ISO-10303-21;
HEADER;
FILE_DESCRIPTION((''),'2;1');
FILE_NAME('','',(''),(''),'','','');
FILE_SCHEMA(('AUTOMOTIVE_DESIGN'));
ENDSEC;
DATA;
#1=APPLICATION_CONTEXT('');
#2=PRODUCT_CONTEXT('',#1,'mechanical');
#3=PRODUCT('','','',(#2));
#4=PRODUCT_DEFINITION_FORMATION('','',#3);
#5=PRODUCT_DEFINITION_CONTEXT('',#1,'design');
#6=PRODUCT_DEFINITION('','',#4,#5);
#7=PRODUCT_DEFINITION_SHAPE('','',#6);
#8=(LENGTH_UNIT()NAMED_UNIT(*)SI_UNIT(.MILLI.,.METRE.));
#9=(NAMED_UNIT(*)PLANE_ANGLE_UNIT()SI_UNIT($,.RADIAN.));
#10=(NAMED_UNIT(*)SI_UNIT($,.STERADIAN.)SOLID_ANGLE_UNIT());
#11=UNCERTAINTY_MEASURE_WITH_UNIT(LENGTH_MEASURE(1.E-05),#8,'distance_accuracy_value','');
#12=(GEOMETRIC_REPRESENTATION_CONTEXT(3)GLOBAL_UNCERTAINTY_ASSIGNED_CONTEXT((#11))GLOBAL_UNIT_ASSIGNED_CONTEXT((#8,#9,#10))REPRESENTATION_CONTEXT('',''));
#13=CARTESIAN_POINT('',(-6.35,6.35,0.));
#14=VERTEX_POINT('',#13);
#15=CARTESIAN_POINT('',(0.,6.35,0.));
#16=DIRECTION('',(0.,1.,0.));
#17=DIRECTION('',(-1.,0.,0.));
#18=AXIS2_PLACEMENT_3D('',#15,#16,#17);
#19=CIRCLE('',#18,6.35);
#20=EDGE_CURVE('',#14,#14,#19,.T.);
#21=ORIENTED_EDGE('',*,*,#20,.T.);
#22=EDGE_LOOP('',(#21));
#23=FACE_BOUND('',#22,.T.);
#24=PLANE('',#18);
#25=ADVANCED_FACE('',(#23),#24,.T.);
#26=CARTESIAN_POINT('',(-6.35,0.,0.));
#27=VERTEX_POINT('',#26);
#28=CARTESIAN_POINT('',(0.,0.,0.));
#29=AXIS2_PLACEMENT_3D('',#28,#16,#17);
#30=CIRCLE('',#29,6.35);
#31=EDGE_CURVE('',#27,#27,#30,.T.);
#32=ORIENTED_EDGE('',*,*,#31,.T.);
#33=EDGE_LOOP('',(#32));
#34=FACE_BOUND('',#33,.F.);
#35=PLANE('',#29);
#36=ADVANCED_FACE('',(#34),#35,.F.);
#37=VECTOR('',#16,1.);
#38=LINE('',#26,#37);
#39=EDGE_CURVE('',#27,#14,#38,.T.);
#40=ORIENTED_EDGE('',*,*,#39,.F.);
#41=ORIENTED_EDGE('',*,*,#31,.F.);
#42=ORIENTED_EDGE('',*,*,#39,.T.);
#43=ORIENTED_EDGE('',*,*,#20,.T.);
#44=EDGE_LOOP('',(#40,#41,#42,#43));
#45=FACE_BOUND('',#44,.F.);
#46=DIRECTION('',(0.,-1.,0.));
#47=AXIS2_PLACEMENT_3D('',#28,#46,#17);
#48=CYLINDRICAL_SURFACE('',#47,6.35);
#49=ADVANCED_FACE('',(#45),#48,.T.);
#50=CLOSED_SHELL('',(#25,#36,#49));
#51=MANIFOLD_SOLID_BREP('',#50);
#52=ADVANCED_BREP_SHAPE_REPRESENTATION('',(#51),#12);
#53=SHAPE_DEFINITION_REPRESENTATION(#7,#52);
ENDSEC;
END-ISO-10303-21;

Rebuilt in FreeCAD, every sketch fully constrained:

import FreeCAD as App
import Part
import Sketcher
from FreeCAD import Vector
Q = App.Units.Quantity

doc = App.newDocument("Part")
params = doc.addObject("Spreadsheet::Sheet", "Params")
for row, (alias, value) in enumerate([
    ("sketch1_diameter", "0.5 in"),
    ("pad1_length", "0.25 in"),
], start=1):
    params.set(f"A{row}", alias)
    params.set(f"B{row}", "=" + value)
    params.setAlias(f"B{row}", alias)

body = doc.addObject("PartDesign::Body", "Body")

sketch1 = body.newObject("Sketcher::SketchObject", "Sketch")
sketch1.AttachmentSupport = (doc.getObject("XZ_Plane"), [""])
sketch1.MapMode = "FlatFace"
sketch1.addGeometry(Part.Circle(Vector(0, 0, 0), Vector(0, 0, 1), 6), False)
sketch1.addConstraint([
    Sketcher.Constraint("Coincident", 0, 3, -1, 1),
    Sketcher.Constraint("Diameter", 0, Q("0.5 in")),
])
sketch1.setExpression("Constraints[1]", "Params.sketch1_diameter")
pad1 = body.newObject("PartDesign::Pad", "Pad")
pad1.Profile = sketch1
pad1.setExpression("Length", "Params.pad1_length")
pad1.Reversed = True

doc.recompute()
